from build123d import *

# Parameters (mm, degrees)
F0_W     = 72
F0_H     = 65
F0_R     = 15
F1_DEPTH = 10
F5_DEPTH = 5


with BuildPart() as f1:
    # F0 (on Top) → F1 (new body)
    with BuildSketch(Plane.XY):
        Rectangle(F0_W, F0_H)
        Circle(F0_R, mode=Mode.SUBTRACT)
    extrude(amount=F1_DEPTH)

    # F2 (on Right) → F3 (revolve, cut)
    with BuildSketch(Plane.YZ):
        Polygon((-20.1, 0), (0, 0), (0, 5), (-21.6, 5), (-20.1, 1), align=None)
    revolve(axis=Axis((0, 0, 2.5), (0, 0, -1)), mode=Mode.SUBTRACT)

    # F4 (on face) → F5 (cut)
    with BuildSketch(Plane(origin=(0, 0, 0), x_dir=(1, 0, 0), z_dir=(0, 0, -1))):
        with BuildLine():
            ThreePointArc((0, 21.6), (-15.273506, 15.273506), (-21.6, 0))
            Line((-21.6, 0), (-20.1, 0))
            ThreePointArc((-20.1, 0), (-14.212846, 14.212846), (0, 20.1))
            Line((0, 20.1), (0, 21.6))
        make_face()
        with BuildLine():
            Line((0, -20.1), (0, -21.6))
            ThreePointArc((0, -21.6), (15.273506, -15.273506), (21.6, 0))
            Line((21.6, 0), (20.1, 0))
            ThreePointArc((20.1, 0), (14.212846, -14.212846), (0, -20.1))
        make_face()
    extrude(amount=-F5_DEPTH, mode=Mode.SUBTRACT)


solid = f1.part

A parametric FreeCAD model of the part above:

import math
import FreeCAD as App
import Part
import Sketcher

V = App.Vector

doc = App.newDocument("Part")
params = doc.addObject("Spreadsheet::Sheet", "Params")
for row, (alias, value) in enumerate([
    ("sketch1_diameter", "30 mm"),
    ("sketch1_width", "72 mm"),
    ("sketch1_height", "65 mm"),
    ("pad1_length", "10 mm"),
    ("sketch2_height", "5 mm"),
    ("sketch2_height2", "1 mm"),
    ("sketch2_width", "20.1 mm"),
    ("sketch2_width2", "21.6 mm"),
    ("groove_angle", "360 deg"),
    ("sketch3_radius", "21.600002 mm"),
    ("sketch3_radius2", "20.100001 mm"),
    ("pocket1_length", "5 mm"),
], start=1):
    params.set(f"A{row}", alias)
    params.set(f"B{row}", "=" + value)
    params.setAlias(f"B{row}", alias)

body = doc.addObject("PartDesign::Body", "Body")

sketch1 = body.newObject("Sketcher::SketchObject", "Sketch")
sketch1.AttachmentSupport = (doc.getObject("XY_Plane"), [""])
sketch1.MapMode = "FlatFace"
sketch1.addGeometry(Part.LineSegment(V(-36, 32, 0), V(-36, -32, 0)), False)
sketch1.addGeometry(Part.LineSegment(V(-36, -32, 0), V(36, -32, 0)), False)
sketch1.addGeometry(Part.LineSegment(V(36, -32, 0), V(36, 32, 0)), False)
sketch1.addGeometry(Part.LineSegment(V(36, 32, 0), V(-36, 32, 0)), False)
sketch1.addGeometry(Part.Circle(V(0, 0, 0), V(0, 0, 1), 15), False)
sketch1.addConstraint(Sketcher.Constraint("Coincident", 0, 2, 1, 1))
sketch1.addConstraint(Sketcher.Constraint("Coincident", 1, 2, 2, 1))
sketch1.addConstraint(Sketcher.Constraint("Coincident", 2, 2, 3, 1))
sketch1.addConstraint(Sketcher.Constraint("Coincident", 3, 2, 0, 1))
sketch1.addConstraint(Sketcher.Constraint("Vertical", 0))
sketch1.addConstraint(Sketcher.Constraint("Horizontal", 1))
sketch1.addConstraint(Sketcher.Constraint("Vertical", 2))
sketch1.addConstraint(Sketcher.Constraint("Horizontal", 3))
sketch1.addConstraint(Sketcher.Constraint("Coincident", 4, 3, -1, 1))
sketch1.addConstraint(Sketcher.Constraint("Symmetric", 0, 2, 2, 2, -1, 1))
sketch1.addConstraint(Sketcher.Constraint("Diameter", 4, 30.0))
sketch1.addConstraint(Sketcher.Constraint("DistanceX", 1, 1, 1, 2, 72.0))
sketch1.addConstraint(Sketcher.Constraint("DistanceY", 0, 2, 0, 1, 65.0))
sketch1.setExpression("Constraints[10]", "Params.sketch1_diameter")
sketch1.setExpression("Constraints[11]", "Params.sketch1_width")
sketch1.setExpression("Constraints[12]", "Params.sketch1_height")
pad1 = body.newObject("PartDesign::Pad", "Pad")
pad1.Profile = sketch1
pad1.setExpression("Length", "Params.pad1_length")

sketch2 = body.newObject("Sketcher::SketchObject", "Sketch001")
sketch2.AttachmentSupport = (doc.getObject("YZ_Plane"), [""])
sketch2.MapMode = "FlatFace"
sketch2.addGeometry(Part.LineSegment(V(-20.1, 0, 0), V(0, 0, 0)), False)
sketch2.addGeometry(Part.LineSegment(V(0, 0, 0), V(0, 5, 0)), False)
sketch2.addGeometry(Part.LineSegment(V(0, 5, 0), V(-21.6, 5, 0)), False)
sketch2.addGeometry(Part.LineSegment(V(-21.6, 5, 0), V(-20.1, 1, 0)), False)
sketch2.addGeometry(Part.LineSegment(V(-20.1, 1, 0), V(-20.1, 0, 0)), False)
sketch2.addConstraint(Sketcher.Constraint("Coincident", 0, 2, 1, 1))
sketch2.addConstraint(Sketcher.Constraint("Coincident", 1, 2, 2, 1))
sketch2.addConstraint(Sketcher.Constraint("Coincident", 2, 2, 3, 1))
sketch2.addConstraint(Sketcher.Constraint("Coincident", 3, 2, 4, 1))
sketch2.addConstraint(Sketcher.Constraint("Coincident", 4, 2, 0, 1))
sketch2.addConstraint(Sketcher.Constraint("Horizontal", 0))
sketch2.addConstraint(Sketcher.Constraint("Vertical", 1))
sketch2.addConstraint(Sketcher.Constraint("Horizontal", 2))
sketch2.addConstraint(Sketcher.Constraint("Vertical", 4))
sketch2.addConstraint(Sketcher.Constraint("Coincident", 0, 2, -1, 1))
sketch2.addConstraint(Sketcher.Constraint("DistanceY", 1, 1, 1, 2, 5.0))
sketch2.addConstraint(Sketcher.Constraint("DistanceY", 4, 2, 4, 1, 1.0))
sketch2.addConstraint(Sketcher.Constraint("DistanceX", 0, 1, 0, 2, 20.1))
sketch2.addConstraint(Sketcher.Constraint("DistanceX", 2, 2, 2, 1, 21.6))
sketch2.setExpression("Constraints[10]", "Params.sketch2_height")
sketch2.setExpression("Constraints[11]", "Params.sketch2_height2")
sketch2.setExpression("Constraints[12]", "Params.sketch2_width")
sketch2.setExpression("Constraints[13]", "Params.sketch2_width2")
groove = body.newObject("PartDesign::Groove", "Groove")
groove.Profile = sketch2
groove.ReferenceAxis = (sketch2, ["V_Axis"])
groove.setExpression("Angle", "Params.groove_angle")

sketch3 = body.newObject("Sketcher::SketchObject", "Sketch002")
sketch3.AttachmentSupport = (doc.getObject("XY_Plane"), [""])
sketch3.MapMode = "FlatFace"
sketch3.addGeometry(Part.ArcOfCircle(Part.Circle(V(0, 0, 0), V(0, 0, 1), 21.6), math.radians(-180), math.radians(-90)), False)
sketch3.addGeometry(Part.LineSegment(V(-21.6, 0, 0), V(-20.1, 0, 0)), False)
sketch3.addGeometry(Part.ArcOfCircle(Part.Circle(V(0, 0, 0), V(0, 0, 1), 20.1), math.radians(-180), math.radians(-90)), False)
sketch3.addGeometry(Part.LineSegment(V(0, -20.1, 0), V(0, -21.6, 0)), False)
sketch3.addGeometry(Part.LineSegment(V(0, 20.1, 0), V(0, 21.6, 0)), False)
sketch3.addGeometry(Part.ArcOfCircle(Part.Circle(V(0, 0, 0), V(0, 0, 1), 21.6), math.radians(0), math.radians(90)), False)
sketch3.addGeometry(Part.LineSegment(V(21.6, 0, 0), V(20.1, 0, 0)), False)
sketch3.addGeometry(Part.ArcOfCircle(Part.Circle(V(0, 0, 0), V(0, 0, 1), 20.1), math.radians(0), math.radians(90)), False)
sketch3.addConstraint(Sketcher.Constraint("Coincident", 0, 1, 1, 1))
sketch3.addConstraint(Sketcher.Constraint("Coincident", 1, 2, 2, 1))
sketch3.addConstraint(Sketcher.Constraint("Coincident", 2, 2, 3, 1))
sketch3.addConstraint(Sketcher.Constraint("Coincident", 3, 2, 0, 2))
sketch3.addConstraint(Sketcher.Constraint("Coincident", 4, 2, 5, 2))
sketch3.addConstraint(Sketcher.Constraint("Coincident", 5, 1, 6, 1))
sketch3.addConstraint(Sketcher.Constraint("Coincident", 6, 2, 7, 1))
sketch3.addConstraint(Sketcher.Constraint("Coincident", 7, 2, 4, 1))
sketch3.addConstraint(Sketcher.Constraint("Horizontal", 1))
sketch3.addConstraint(Sketcher.Constraint("Vertical", 3))
sketch3.addConstraint(Sketcher.Constraint("Vertical", 4))
sketch3.addConstraint(Sketcher.Constraint("Horizontal", 6))
sketch3.addConstraint(Sketcher.Constraint("Coincident", 0, 3, -1, 1))
sketch3.addConstraint(Sketcher.Constraint("Coincident", 2, 3, -1, 1))
sketch3.addConstraint(Sketcher.Constraint("Coincident", 5, 3, -1, 1))
sketch3.addConstraint(Sketcher.Constraint("Coincident", 7, 3, -1, 1))
sketch3.addConstraint(Sketcher.Constraint("Equal", 0, 5))
sketch3.addConstraint(Sketcher.Constraint("Equal", 2, 7))
sketch3.addConstraint(Sketcher.Constraint("PointOnObject", 0, 1, -1))
sketch3.addConstraint(Sketcher.Constraint("PointOnObject", 2, 2, -2))
sketch3.addConstraint(Sketcher.Constraint("PointOnObject", 4, 2, -2))
sketch3.addConstraint(Sketcher.Constraint("PointOnObject", 5, 1, -1))
sketch3.addConstraint(Sketcher.Constraint("Radius", 0, 21.600002))
sketch3.addConstraint(Sketcher.Constraint("Radius", 2, 20.100001))
sketch3.setExpression("Constraints[22]", "Params.sketch3_radius")
sketch3.setExpression("Constraints[23]", "Params.sketch3_radius2")
pocket1 = body.newObject("PartDesign::Pocket", "Pocket")
pocket1.Profile = sketch3
pocket1.setExpression("Length", "Params.pocket1_length")
pocket1.Reversed = True

doc.recompute()
